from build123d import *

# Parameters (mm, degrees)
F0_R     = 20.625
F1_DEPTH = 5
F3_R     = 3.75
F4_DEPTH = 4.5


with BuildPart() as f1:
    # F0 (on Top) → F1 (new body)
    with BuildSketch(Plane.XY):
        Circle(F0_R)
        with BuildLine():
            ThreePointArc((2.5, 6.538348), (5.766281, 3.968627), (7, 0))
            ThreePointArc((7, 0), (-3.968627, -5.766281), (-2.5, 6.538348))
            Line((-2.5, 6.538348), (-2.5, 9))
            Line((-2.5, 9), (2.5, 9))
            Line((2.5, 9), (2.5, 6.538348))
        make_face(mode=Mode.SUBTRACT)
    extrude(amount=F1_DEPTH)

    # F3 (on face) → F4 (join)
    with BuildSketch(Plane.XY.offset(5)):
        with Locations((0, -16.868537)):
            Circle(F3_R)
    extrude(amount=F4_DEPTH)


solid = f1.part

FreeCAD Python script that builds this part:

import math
import FreeCAD as App
import Part
import Sketcher

doc = App.newDocument("Part")
body = doc.addObject("PartDesign::Body", "Body")

# Sketch on XY plane
sketch1 = body.newObject("Sketcher::SketchObject", "Sketch")
sketch1.AttachmentSupport = (doc.getObject("XY_Plane"), [""])
sketch1.MapMode = "FlatFace"
sketch1.addGeometry([
    Part.Circle(App.Vector(0, 0, 0), App.Vector(0, 0, 1), 20.6),  # 0
    Part.LineSegment(App.Vector(2.5, 9, 0), App.Vector(2.5, 6.5, 0)),  # 1
    Part.ArcOfCircle(Part.Circle(App.Vector(0, 0, 0), App.Vector(0, 0, 1), 7), math.radians(0), math.radians(69)),  # 2
    Part.ArcOfCircle(Part.Circle(App.Vector(0, 0, 0), App.Vector(0, 0, 1), 7), math.radians(111), math.radians(360)),  # 3
    Part.LineSegment(App.Vector(-2.5, 6.5, 0), App.Vector(-2.5, 9, 0)),  # 4
    Part.LineSegment(App.Vector(-2.5, 9, 0), App.Vector(2.5, 9, 0)),  # 5
], False)
sketch1.addConstraint([
    Sketcher.Constraint("Coincident", 1, 2, 2, 2),
    Sketcher.Constraint("Tangent", 2, 1, 3, 2),
    Sketcher.Constraint("Coincident", 3, 1, 4, 1),
    Sketcher.Constraint("Coincident", 4, 2, 5, 1),
    Sketcher.Constraint("Coincident", 5, 2, 1, 1),
    Sketcher.Constraint("Vertical", 1),
    Sketcher.Constraint("Vertical", 4),
    Sketcher.Constraint("Horizontal", 5),
    Sketcher.Constraint("Coincident", 0, 3, -1, 1),
    Sketcher.Constraint("Coincident", 2, 3, -1, 1),
    Sketcher.Constraint("Equal", 2, 3),
    Sketcher.Constraint("PointOnObject", 2, 1, -1),
    Sketcher.Constraint("Horizontal", 1, 2, 3, 1),
    Sketcher.Constraint("Radius", 2, 7.0),
    Sketcher.Constraint("Diameter", 0, 41.25),
    Sketcher.Constraint("DistanceX", 5, 1, 5, 2, 5.0),
    Sketcher.Constraint("DistanceY", -1, 1, 4, 2, 9.0),
])
pad1 = body.newObject("PartDesign::Pad", "Pad")
pad1.Profile = sketch1
pad1.Length = 5

# Sketch on XY plane
sketch2 = body.newObject("Sketcher::SketchObject", "Sketch001")
sketch2.AttachmentSupport = (doc.getObject("XY_Plane"), [""])
sketch2.MapMode = "FlatFace"
sketch2.AttachmentOffset = App.Placement(App.Vector(0, 0, 5), App.Rotation())
sketch2.addGeometry(Part.Circle(App.Vector(0, -16.9, 0), App.Vector(0, 0, 1), 3.8), False)
sketch2.addConstraint([
    Sketcher.Constraint("PointOnObject", 0, 3, -2),
    Sketcher.Constraint("Diameter", 0, 7.5),
    Sketcher.Constraint("DistanceY", 0, 3, -1, 1, 16.868537),
])
pad2 = body.newObject("PartDesign::Pad", "Pad001")
pad2.Profile = sketch2
pad2.Length = 4.5

doc.recompute()
